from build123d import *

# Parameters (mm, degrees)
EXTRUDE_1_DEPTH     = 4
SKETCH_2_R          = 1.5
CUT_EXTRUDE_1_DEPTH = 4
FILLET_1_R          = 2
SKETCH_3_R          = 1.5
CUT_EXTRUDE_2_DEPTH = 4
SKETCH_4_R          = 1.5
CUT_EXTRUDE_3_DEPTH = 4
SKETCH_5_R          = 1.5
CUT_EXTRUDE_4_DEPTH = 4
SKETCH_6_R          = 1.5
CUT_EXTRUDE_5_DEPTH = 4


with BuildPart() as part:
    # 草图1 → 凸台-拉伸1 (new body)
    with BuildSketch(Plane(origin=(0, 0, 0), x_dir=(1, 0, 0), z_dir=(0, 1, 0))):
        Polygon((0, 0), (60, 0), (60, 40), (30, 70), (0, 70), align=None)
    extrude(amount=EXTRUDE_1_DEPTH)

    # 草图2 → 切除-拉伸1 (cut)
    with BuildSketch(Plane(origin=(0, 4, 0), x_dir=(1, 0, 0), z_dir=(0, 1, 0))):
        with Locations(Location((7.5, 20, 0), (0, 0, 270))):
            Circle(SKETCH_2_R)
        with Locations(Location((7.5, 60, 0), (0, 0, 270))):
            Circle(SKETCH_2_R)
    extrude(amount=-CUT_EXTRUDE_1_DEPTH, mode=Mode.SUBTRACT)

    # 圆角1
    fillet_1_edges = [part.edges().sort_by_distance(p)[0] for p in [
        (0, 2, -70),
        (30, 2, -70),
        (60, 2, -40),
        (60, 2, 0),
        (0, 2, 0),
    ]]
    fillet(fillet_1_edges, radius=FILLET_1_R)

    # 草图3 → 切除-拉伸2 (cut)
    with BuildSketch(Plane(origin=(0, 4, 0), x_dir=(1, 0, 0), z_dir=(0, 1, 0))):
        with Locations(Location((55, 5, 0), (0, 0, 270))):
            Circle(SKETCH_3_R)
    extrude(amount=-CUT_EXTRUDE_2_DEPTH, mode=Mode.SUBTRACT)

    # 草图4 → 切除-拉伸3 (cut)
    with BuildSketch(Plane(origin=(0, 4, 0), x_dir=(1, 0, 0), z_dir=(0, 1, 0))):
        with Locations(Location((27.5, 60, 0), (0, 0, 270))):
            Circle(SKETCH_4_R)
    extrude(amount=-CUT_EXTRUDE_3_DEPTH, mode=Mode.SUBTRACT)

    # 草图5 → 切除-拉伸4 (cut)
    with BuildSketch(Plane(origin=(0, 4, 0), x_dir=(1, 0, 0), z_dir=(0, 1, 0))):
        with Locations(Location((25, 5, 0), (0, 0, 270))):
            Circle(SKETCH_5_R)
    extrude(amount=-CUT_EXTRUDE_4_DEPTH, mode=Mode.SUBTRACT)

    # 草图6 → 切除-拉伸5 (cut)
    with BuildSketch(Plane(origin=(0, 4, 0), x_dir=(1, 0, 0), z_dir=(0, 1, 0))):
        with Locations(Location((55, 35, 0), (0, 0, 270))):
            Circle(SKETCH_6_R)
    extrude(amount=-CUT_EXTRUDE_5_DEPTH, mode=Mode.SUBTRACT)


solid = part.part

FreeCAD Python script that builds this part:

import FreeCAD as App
import Part
import Sketcher
from FreeCAD import Vector


def edges_at(feature, points):
    """Names of the edges that pass closest to the given points."""
    edges = feature.Shape.Edges
    near = lambda p: min(range(len(edges)), key=lambda i: edges[i].distToShape(Part.Vertex(*p))[0])
    return sorted({f"Edge{near(p) + 1}" for p in points})

doc = App.newDocument("Part")
body = doc.addObject("PartDesign::Body", "Body")

# Sketch on XZ plane
sketch1 = body.newObject("Sketcher::SketchObject", "Sketch")
sketch1.AttachmentSupport = (doc.getObject("XZ_Plane"), [""])
sketch1.MapMode = "FlatFace"
sketch1.addGeometry(Part.LineSegment(Vector(0, 0, 0), Vector(60, 0, 0)), False)
sketch1.addGeometry(Part.LineSegment(Vector(60, 0, 0), Vector(60, -40, 0)), False)
sketch1.addGeometry(Part.LineSegment(Vector(60, -40, 0), Vector(30, -70, 0)), False)
sketch1.addGeometry(Part.LineSegment(Vector(30, -70, 0), Vector(0, -70, 0)), False)
sketch1.addGeometry(Part.LineSegment(Vector(0, -70, 0), Vector(0, 0, 0)), False)
sketch1.addConstraint(Sketcher.Constraint("Coincident", 0, 2, 1, 1))
sketch1.addConstraint(Sketcher.Constraint("Coincident", 1, 2, 2, 1))
sketch1.addConstraint(Sketcher.Constraint("Coincident", 2, 2, 3, 1))
sketch1.addConstraint(Sketcher.Constraint("Coincident", 3, 2, 4, 1))
sketch1.addConstraint(Sketcher.Constraint("Coincident", 4, 2, 0, 1))
sketch1.addConstraint(Sketcher.Constraint("Horizontal", 0))
sketch1.addConstraint(Sketcher.Constraint("Vertical", 1))
sketch1.addConstraint(Sketcher.Constraint("Horizontal", 3))
sketch1.addConstraint(Sketcher.Constraint("Vertical", 4))
sketch1.addConstraint(Sketcher.Constraint("Coincident", 4, 2, -1, 1))
sketch1.addConstraint(Sketcher.Constraint("DistanceX", 0, 1, 0, 2, 60.0))
sketch1.addConstraint(Sketcher.Constraint("DistanceX", 3, 2, 3, 1, 30.0))
sketch1.addConstraint(Sketcher.Constraint("DistanceY", 1, 2, 1, 1, 40.0))
sketch1.addConstraint(Sketcher.Constraint("DistanceY", 4, 1, 4, 2, 70.0))
pad1 = body.newObject("PartDesign::Pad", "Pad")
pad1.Profile = sketch1
pad1.Length = 4
pad1.Reversed = True

# Sketch on XZ plane
sketch2 = body.newObject("Sketcher::SketchObject", "Sketch001")
sketch2.AttachmentSupport = (doc.getObject("XZ_Plane"), [""])
sketch2.MapMode = "FlatFace"
sketch2.AttachmentOffset = App.Placement(Vector(0, 0, -4), App.Rotation())
sketch2.addGeometry(Part.Circle(Vector(7.5, -20, 0), Vector(0, 0, 1), 1.5), False)
sketch2.addGeometry(Part.Circle(Vector(7.5, -60, 0), Vector(0, 0, 1), 1.5), False)
sketch2.addConstraint(Sketcher.Constraint("Equal", 0, 1))
sketch2.addConstraint(Sketcher.Constraint("Vertical", 0, 3, 1, 3))
sketch2.addConstraint(Sketcher.Constraint("Diameter", 0, 3.0))
sketch2.addConstraint(Sketcher.Constraint("DistanceY", 0, 3, -1, 1, 20.0))
sketch2.addConstraint(Sketcher.Constraint("DistanceY", 1, 3, -1, 1, 60.0))
sketch2.addConstraint(Sketcher.Constraint("DistanceX", -1, 1, 0, 3, 7.5))
pocket1 = body.newObject("PartDesign::Pocket", "Pocket")
pocket1.Profile = sketch2
pocket1.Length = 4
pocket1.Reversed = True
doc.recompute()

fillet = body.newObject("PartDesign::Fillet", "Fillet")
fillet.Base = (pocket1, edges_at(pocket1, [
    (0, 2, -70),
    (30, 2, -70),
    (60, 2, -40),
    (60, 2, 0),
    (0, 2, 0),
]))
fillet.Radius = 2

# Sketch on XZ plane
sketch3 = body.newObject("Sketcher::SketchObject", "Sketch002")
sketch3.AttachmentSupport = (doc.getObject("XZ_Plane"), [""])
sketch3.MapMode = "FlatFace"
sketch3.AttachmentOffset = App.Placement(Vector(0, 0, -4), App.Rotation())
sketch3.addGeometry(Part.Circle(Vector(55, -5, 0), Vector(0, 0, 1), 1.5), False)
sketch3.addConstraint(Sketcher.Constraint("Diameter", 0, 3.0))
sketch3.addConstraint(Sketcher.Constraint("DistanceX", -1, 1, 0, 3, 55.0))
sketch3.addConstraint(Sketcher.Constraint("DistanceY", 0, 3, -1, 1, 5.0))
pocket2 = body.newObject("PartDesign::Pocket", "Pocket001")
pocket2.Profile = sketch3
pocket2.Length = 4
pocket2.Reversed = True

# Sketch on XZ plane
sketch4 = body.newObject("Sketcher::SketchObject", "Sketch003")
sketch4.AttachmentSupport = (doc.getObject("XZ_Plane"), [""])
sketch4.MapMode = "FlatFace"
sketch4.AttachmentOffset = App.Placement(Vector(0, 0, -4), App.Rotation())
sketch4.addGeometry(Part.Circle(Vector(27.5, -60, 0), Vector(0, 0, 1), 1.5), False)
sketch4.addConstraint(Sketcher.Constraint("Diameter", 0, 3.0))
sketch4.addConstraint(Sketcher.Constraint("DistanceY", 0, 3, -1, 1, 60.0))
sketch4.addConstraint(Sketcher.Constraint("DistanceX", -1, 1, 0, 3, 27.5))
pocket3 = body.newObject("PartDesign::Pocket", "Pocket002")
pocket3.Profile = sketch4
pocket3.Length = 4
pocket3.Reversed = True

# Sketch on XZ plane
sketch5 = body.newObject("Sketcher::SketchObject", "Sketch004")
sketch5.AttachmentSupport = (doc.getObject("XZ_Plane"), [""])
sketch5.MapMode = "FlatFace"
sketch5.AttachmentOffset = App.Placement(Vector(0, 0, -4), App.Rotation())
sketch5.addGeometry(Part.Circle(Vector(25, -5, 0), Vector(0, 0, 1), 1.5), False)
sketch5.addConstraint(Sketcher.Constraint("Diameter", 0, 3.0))
sketch5.addConstraint(Sketcher.Constraint("DistanceX", -1, 1, 0, 3, 25.0))
sketch5.addConstraint(Sketcher.Constraint("DistanceY", 0, 3, -1, 1, 5.0))
pocket4 = body.newObject("PartDesign::Pocket", "Pocket003")
pocket4.Profile = sketch5
pocket4.Length = 4
pocket4.Reversed = True

# Sketch on XZ plane
sketch6 = body.newObject("Sketcher::SketchObject", "Sketch005")
sketch6.AttachmentSupport = (doc.getObject("XZ_Plane"), [""])
sketch6.MapMode = "FlatFace"
sketch6.AttachmentOffset = App.Placement(Vector(0, 0, -4), App.Rotation())
sketch6.addGeometry(Part.Circle(Vector(55, -35, 0), Vector(0, 0, 1), 1.5), False)
sketch6.addConstraint(Sketcher.Constraint("Diameter", 0, 3.0))
sketch6.addConstraint(Sketcher.Constraint("DistanceX", -1, 1, 0, 3, 55.0))
sketch6.addConstraint(Sketcher.Constraint("DistanceY", 0, 3, -1, 1, 35.0))
pocket5 = body.newObject("PartDesign::Pocket", "Pocket004")
pocket5.Profile = sketch6
pocket5.Length = 4
pocket5.Reversed = True

doc.recompute()
